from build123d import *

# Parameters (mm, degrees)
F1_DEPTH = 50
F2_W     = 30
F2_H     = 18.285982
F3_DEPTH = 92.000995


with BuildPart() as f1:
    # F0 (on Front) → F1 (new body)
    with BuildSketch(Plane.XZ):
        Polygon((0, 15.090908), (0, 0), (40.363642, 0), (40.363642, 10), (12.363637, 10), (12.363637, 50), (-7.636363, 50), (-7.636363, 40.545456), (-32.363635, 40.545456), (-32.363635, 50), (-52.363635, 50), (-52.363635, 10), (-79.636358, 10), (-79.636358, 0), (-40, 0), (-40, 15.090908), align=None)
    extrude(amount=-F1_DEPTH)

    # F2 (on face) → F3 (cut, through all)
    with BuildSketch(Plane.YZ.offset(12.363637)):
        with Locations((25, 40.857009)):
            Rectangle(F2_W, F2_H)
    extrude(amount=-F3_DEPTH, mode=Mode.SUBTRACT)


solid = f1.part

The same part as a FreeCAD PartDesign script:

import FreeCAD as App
import Part
import Sketcher

V = App.Vector


def add_polygon(sketch, points):
    """Adds a closed chain of lines whose ends are joined by coincident constraints."""
    first, n = sketch.GeometryCount, len(points)
    for a, b in zip(points, points[1:] + points[:1]):
        sketch.addGeometry(Part.LineSegment(App.Vector(*a, 0), App.Vector(*b, 0)), False)
    for i in range(n):
        sketch.addConstraint(Sketcher.Constraint("Coincident", first + i, 2, first + (i + 1) % n, 1))

doc = App.newDocument("Part")
body = doc.addObject("PartDesign::Body", "Body")

# Sketch on XZ plane
sketch1 = body.newObject("Sketcher::SketchObject", "Sketch")
sketch1.AttachmentSupport = (doc.getObject("XZ_Plane"), [""])
sketch1.MapMode = "FlatFace"
add_polygon(sketch1, [(0, 15), (0, 0), (40, 0), (40, 10), (12, 10), (12, 50), (-8, 50), (-8, 41), (-32, 41), (-32, 50), (-52, 50), (-52, 10), (-80, 10), (-80, 0), (-40, 0), (-40, 15)])  # lines 0-15
sketch1.addConstraint(Sketcher.Constraint("Vertical", 0))
sketch1.addConstraint(Sketcher.Constraint("Horizontal", 1))
sketch1.addConstraint(Sketcher.Constraint("Vertical", 2))
sketch1.addConstraint(Sketcher.Constraint("Horizontal", 3))
sketch1.addConstraint(Sketcher.Constraint("Vertical", 4))
sketch1.addConstraint(Sketcher.Constraint("Horizontal", 5))
sketch1.addConstraint(Sketcher.Constraint("Vertical", 6))
sketch1.addConstraint(Sketcher.Constraint("Horizontal", 7))
sketch1.addConstraint(Sketcher.Constraint("Vertical", 8))
sketch1.addConstraint(Sketcher.Constraint("Horizontal", 9))
sketch1.addConstraint(Sketcher.Constraint("Vertical", 10))
sketch1.addConstraint(Sketcher.Constraint("Horizontal", 11))
sketch1.addConstraint(Sketcher.Constraint("Vertical", 12))
sketch1.addConstraint(Sketcher.Constraint("Horizontal", 13))
sketch1.addConstraint(Sketcher.Constraint("Vertical", 14))
sketch1.addConstraint(Sketcher.Constraint("Horizontal", 15))
sketch1.addConstraint(Sketcher.Constraint("Coincident", 0, 2, -1, 1))
sketch1.addConstraint(Sketcher.Constraint("PointOnObject", 12, 2, -1))
sketch1.addConstraint(Sketcher.Constraint("Horizontal", 5, 2, 8, 2))
sketch1.addConstraint(Sketcher.Constraint("Horizontal", 3, 2, 10, 2))
sketch1.addConstraint(Sketcher.Constraint("Equal", 5, 9))
sketch1.addConstraint(Sketcher.Constraint("Equal", 15, 4))
sketch1.addConstraint(Sketcher.Constraint("DistanceX", 5, 2, 5, 1, 20.0))
sketch1.addConstraint(Sketcher.Constraint("DistanceX", 15, 1, 15, 2, 40.0))
sketch1.addConstraint(Sketcher.Constraint("DistanceY", 2, 1, 2, 2, 10.0))
sketch1.addConstraint(Sketcher.Constraint("DistanceY", 0, 2, 0, 1, 15.090908))
sketch1.addConstraint(Sketcher.Constraint("DistanceX", 1, 1, 1, 2, 40.363642))
sketch1.addConstraint(Sketcher.Constraint("DistanceX", 3, 2, 3, 1, 28.000005))
sketch1.addConstraint(Sketcher.Constraint("DistanceX", 7, 2, 7, 1, 24.727272))
sketch1.addConstraint(Sketcher.Constraint("DistanceX", 11, 2, 11, 1, 27.272723))
sketch1.addConstraint(Sketcher.Constraint("DistanceY", 6, 2, 6, 1, 9.454544))
pad1 = body.newObject("PartDesign::Pad", "Pad")
pad1.Profile = sketch1
pad1.Length = 50
pad1.Reversed = True

# Sketch on YZ plane
sketch2 = body.newObject("Sketcher::SketchObject", "Sketch001")
sketch2.AttachmentSupport = (doc.getObject("YZ_Plane"), [""])
sketch2.MapMode = "FlatFace"
sketch2.AttachmentOffset = App.Placement(V(0, 0, 12.363637), App.Rotation())
add_polygon(sketch2, [(10, 50), (10, 32), (40, 32), (40, 50)])  # lines 0-3
sketch2.addConstraint(Sketcher.Constraint("Vertical", 0))
sketch2.addConstraint(Sketcher.Constraint("Horizontal", 1))
sketch2.addConstraint(Sketcher.Constraint("Vertical", 2))
sketch2.addConstraint(Sketcher.Constraint("Horizontal", 3))
sketch2.addConstraint(Sketcher.Constraint("DistanceX", 1, 1, 1, 2, 30.0))
sketch2.addConstraint(Sketcher.Constraint("DistanceX", -1, 1, 0, 2, 10.0))
sketch2.addConstraint(Sketcher.Constraint("DistanceY", -1, 1, 2, 2, 50.0))
sketch2.addConstraint(Sketcher.Constraint("DistanceY", 0, 2, 0, 1, 18.285982))
pocket1 = body.newObject("PartDesign::Pocket", "Pocket")
pocket1.Profile = sketch2
pocket1.Type = "ThroughAll"

doc.recompute()
